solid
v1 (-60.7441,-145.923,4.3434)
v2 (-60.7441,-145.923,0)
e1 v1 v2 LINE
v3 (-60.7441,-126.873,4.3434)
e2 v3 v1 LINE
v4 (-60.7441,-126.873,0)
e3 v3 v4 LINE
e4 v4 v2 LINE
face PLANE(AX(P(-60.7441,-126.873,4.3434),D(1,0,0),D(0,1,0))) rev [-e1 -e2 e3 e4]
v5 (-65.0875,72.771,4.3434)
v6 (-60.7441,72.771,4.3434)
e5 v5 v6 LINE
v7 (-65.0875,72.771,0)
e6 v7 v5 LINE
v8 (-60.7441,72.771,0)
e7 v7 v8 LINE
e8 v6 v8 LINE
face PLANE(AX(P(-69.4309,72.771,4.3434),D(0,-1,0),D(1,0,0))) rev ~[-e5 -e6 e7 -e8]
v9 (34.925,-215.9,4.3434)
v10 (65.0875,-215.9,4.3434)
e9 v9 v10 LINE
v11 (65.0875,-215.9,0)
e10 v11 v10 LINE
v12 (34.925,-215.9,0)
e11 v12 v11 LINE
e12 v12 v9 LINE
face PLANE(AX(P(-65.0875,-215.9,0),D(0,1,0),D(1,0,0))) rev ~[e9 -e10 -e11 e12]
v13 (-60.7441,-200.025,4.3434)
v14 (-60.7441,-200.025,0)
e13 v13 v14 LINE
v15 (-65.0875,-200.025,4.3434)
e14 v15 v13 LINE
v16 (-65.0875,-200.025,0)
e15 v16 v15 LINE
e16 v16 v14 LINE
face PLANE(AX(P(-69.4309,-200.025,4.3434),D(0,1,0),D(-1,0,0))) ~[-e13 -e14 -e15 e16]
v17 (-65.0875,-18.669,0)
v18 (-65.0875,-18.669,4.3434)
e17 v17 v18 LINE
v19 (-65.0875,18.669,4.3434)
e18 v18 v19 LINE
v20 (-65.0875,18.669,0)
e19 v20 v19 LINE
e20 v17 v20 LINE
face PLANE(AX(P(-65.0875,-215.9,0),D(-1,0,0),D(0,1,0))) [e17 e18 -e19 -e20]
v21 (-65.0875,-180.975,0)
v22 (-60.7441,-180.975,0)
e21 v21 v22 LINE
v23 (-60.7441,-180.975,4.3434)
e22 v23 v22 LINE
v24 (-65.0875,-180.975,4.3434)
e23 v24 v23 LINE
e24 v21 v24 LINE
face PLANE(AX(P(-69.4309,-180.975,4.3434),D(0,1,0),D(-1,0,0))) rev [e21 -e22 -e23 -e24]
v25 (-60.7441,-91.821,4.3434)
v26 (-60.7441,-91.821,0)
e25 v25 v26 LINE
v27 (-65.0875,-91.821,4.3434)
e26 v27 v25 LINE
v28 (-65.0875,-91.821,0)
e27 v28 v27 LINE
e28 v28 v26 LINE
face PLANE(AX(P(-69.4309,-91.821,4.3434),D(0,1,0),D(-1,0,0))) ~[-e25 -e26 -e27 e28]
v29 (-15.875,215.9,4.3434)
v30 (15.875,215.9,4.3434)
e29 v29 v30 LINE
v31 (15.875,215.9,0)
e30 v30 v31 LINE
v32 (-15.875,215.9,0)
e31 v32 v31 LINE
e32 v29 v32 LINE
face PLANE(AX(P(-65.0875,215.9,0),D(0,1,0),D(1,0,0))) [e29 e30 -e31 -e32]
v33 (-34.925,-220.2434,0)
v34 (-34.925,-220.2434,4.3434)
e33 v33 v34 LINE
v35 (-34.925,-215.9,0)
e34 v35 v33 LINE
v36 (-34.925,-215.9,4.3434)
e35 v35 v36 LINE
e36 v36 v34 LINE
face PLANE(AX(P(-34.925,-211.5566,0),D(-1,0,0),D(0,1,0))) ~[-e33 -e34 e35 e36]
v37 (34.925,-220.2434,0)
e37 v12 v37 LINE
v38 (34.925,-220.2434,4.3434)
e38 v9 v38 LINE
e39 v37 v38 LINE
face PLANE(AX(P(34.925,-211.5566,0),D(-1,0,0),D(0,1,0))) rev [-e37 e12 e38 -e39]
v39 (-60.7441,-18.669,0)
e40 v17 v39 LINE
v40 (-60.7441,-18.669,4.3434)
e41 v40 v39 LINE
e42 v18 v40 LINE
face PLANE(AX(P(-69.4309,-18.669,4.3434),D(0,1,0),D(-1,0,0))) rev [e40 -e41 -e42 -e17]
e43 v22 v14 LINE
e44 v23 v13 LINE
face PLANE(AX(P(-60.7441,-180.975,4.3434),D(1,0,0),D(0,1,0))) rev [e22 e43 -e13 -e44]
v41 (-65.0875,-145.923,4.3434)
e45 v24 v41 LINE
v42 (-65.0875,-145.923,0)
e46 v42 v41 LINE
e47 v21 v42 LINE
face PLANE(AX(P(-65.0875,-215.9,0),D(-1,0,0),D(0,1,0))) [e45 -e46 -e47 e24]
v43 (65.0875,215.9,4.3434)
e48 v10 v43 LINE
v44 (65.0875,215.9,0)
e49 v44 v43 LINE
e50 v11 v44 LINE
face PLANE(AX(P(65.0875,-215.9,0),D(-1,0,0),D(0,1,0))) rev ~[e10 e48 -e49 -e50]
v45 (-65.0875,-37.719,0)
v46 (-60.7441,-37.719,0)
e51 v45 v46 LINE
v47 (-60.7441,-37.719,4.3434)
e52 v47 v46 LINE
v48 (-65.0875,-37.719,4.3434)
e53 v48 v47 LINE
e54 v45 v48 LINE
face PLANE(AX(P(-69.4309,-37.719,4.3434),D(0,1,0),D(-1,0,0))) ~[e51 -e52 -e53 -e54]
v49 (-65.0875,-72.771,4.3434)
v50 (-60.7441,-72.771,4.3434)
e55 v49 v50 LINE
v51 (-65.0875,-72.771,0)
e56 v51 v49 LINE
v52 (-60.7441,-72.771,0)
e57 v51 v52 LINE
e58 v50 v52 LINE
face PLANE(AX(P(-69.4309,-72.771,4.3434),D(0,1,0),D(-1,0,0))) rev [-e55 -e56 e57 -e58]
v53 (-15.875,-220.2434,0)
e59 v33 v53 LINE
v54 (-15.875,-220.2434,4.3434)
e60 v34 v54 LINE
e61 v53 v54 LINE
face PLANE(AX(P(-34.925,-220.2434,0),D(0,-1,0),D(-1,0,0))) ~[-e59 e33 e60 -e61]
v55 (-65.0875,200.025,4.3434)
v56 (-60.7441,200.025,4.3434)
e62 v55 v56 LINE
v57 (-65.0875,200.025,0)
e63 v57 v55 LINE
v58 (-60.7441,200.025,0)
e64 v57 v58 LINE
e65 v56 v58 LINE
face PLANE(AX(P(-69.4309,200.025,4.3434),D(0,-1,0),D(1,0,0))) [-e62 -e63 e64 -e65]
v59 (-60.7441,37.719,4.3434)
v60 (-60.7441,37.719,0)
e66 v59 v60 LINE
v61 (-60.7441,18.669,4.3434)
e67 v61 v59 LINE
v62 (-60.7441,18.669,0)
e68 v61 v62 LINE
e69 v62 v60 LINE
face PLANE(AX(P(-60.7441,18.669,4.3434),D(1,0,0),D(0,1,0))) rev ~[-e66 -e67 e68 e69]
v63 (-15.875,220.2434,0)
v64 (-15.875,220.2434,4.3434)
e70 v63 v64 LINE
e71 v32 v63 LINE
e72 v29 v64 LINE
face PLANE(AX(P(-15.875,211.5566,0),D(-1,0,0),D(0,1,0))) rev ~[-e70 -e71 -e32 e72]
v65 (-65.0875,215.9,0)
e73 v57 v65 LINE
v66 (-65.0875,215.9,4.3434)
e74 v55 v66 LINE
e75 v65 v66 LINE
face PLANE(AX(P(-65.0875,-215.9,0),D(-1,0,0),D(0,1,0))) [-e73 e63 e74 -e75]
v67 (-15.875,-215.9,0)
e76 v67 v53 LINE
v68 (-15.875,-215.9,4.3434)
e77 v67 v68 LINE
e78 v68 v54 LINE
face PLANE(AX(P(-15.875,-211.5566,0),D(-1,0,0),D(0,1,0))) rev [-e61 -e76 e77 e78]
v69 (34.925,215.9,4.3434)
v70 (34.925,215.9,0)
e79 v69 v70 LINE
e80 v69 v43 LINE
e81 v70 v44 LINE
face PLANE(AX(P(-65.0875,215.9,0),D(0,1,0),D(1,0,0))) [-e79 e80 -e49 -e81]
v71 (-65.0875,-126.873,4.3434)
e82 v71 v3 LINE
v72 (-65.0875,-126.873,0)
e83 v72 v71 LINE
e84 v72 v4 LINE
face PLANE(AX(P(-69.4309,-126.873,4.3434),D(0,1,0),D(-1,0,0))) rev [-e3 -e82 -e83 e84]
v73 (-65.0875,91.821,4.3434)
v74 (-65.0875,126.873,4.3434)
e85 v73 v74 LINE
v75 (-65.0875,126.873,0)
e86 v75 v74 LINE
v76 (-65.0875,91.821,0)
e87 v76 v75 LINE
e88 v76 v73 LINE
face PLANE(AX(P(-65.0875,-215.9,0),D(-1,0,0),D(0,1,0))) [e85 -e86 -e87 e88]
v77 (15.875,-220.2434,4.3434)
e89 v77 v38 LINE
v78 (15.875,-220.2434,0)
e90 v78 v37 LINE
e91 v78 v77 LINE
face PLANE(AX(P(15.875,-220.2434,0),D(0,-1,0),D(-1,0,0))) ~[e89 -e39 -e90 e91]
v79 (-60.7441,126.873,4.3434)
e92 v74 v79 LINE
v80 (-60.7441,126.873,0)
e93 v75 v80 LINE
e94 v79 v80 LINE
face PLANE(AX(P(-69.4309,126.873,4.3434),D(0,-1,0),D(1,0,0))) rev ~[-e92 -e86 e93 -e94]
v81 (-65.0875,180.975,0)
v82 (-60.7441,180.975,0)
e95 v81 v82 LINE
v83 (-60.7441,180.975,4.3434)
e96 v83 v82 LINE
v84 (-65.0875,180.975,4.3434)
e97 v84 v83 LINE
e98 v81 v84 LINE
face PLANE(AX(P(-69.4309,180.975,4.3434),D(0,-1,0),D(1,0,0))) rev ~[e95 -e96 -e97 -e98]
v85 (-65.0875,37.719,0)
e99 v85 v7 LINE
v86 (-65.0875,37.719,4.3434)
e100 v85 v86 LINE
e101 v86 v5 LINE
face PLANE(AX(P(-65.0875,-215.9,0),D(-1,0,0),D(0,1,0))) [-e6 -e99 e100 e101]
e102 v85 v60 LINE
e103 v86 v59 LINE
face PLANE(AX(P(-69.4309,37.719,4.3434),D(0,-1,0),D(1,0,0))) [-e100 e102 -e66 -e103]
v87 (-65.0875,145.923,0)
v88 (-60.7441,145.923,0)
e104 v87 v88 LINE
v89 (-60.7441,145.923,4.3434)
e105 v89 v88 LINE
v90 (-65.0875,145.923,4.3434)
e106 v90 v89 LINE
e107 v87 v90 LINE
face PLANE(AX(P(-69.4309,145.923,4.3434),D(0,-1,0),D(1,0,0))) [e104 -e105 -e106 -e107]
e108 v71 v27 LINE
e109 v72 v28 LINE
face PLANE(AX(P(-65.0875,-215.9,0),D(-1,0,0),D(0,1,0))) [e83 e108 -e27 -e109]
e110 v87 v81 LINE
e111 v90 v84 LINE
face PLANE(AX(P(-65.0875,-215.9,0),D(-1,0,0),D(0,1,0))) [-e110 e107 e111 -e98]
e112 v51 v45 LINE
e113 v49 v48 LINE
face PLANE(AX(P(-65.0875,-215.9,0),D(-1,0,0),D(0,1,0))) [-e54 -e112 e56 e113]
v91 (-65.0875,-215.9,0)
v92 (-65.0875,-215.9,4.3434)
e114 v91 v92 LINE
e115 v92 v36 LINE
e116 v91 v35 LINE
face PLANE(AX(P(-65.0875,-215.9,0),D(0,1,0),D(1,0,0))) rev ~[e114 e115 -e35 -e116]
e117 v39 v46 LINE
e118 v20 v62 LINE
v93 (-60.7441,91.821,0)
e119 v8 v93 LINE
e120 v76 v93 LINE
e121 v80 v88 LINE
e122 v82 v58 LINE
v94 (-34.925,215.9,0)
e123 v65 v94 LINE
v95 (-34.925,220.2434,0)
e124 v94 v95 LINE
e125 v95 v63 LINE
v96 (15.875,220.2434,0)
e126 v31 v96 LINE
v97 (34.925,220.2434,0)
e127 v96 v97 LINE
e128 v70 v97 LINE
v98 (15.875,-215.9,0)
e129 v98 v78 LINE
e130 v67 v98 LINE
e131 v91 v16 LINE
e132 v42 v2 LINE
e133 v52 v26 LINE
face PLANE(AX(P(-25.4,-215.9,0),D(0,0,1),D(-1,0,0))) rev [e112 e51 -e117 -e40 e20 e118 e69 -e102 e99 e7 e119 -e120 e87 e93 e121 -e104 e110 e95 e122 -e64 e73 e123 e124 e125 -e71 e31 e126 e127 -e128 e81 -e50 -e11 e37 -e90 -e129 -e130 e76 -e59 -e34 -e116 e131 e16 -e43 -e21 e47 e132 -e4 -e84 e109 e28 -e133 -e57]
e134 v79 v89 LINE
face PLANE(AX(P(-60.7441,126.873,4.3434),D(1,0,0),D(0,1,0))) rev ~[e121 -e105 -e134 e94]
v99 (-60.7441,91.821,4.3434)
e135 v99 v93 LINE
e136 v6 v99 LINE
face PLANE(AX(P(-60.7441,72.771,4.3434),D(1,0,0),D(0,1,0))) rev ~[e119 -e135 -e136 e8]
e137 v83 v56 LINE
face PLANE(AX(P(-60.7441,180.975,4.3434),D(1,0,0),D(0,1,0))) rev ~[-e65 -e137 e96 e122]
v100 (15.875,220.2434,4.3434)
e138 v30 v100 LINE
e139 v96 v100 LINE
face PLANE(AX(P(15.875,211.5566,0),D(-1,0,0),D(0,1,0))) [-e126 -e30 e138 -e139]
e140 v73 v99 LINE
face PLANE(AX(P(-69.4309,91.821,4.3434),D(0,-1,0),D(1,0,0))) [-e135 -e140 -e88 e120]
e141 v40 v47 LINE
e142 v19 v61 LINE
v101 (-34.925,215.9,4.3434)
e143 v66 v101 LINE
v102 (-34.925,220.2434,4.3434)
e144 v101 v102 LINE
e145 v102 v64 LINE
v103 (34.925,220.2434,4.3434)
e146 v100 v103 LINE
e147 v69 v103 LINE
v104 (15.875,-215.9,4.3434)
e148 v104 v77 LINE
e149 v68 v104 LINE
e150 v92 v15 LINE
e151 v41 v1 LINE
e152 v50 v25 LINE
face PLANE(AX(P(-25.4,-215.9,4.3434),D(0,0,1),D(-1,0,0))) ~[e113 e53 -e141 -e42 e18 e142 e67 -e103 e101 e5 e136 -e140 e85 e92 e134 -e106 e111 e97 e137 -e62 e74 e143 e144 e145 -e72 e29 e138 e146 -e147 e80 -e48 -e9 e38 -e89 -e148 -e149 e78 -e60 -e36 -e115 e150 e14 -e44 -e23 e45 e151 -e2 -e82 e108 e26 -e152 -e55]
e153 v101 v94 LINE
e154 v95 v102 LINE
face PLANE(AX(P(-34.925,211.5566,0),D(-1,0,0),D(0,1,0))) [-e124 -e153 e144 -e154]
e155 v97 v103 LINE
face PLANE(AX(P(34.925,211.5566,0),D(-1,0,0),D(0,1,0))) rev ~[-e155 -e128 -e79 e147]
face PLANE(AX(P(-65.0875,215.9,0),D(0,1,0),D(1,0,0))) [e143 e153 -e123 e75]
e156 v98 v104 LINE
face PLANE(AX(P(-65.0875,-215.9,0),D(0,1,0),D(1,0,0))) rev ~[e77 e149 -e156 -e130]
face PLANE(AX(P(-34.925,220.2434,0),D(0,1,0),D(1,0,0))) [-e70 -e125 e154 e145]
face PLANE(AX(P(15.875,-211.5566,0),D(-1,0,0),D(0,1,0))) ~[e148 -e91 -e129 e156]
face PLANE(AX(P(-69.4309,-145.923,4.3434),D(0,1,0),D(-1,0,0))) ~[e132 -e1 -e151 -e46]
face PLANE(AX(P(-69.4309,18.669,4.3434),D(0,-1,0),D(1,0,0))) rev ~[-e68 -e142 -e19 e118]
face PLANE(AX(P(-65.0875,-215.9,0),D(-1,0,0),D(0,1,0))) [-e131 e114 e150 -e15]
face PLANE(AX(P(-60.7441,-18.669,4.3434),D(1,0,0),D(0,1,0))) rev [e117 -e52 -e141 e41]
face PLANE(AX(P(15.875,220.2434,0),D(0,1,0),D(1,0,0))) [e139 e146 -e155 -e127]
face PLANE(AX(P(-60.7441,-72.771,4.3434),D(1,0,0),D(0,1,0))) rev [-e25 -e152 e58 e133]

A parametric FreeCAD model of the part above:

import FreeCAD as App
import Part
import Sketcher
from FreeCAD import Vector
Q = App.Units.Quantity

doc = App.newDocument("Part")
params = doc.addObject("Spreadsheet::Sheet", "Params")
for row, (alias, value) in enumerate([
    ("sketch1_height", "17 in"),
    ("sketch1_width", "5.125 in"),
    ("pad1_length", "0.171 in"),
    ("sketch2_width", "0.75 in"),
    ("sketch2_width2", "0.342 in"),
    ("sketch3_width", "0.75 in"),
    ("sketch3_height", "0.342 in"),
    ("pad2_length", "0.171 in"),
], start=1):
    params.set(f"A{row}", alias)
    params.set(f"B{row}", "=" + value)
    params.setAlias(f"B{row}", alias)

body = doc.addObject("PartDesign::Body", "Body")

# Sketch on XY plane
sketch1 = body.newObject("Sketcher::SketchObject", "Sketch")
sketch1.AttachmentSupport = (doc.getObject("XY_Plane"), [""])
sketch1.MapMode = "FlatFace"
sketch1.addGeometry(Part.LineSegment(Vector(-65.0875, 215.9, 0), Vector(-65.0875, -215.9, 0)), False)
sketch1.addGeometry(Part.LineSegment(Vector(-65.0875, -215.9, 0), Vector(65.0875, -215.9, 0)), False)
sketch1.addGeometry(Part.LineSegment(Vector(65.0875, -215.9, 0), Vector(65.0875, 215.9, 0)), False)
sketch1.addGeometry(Part.LineSegment(Vector(65.0875, 215.9, 0), Vector(-65.0875, 215.9, 0)), False)
sketch1.addConstraint(Sketcher.Constraint("Coincident", 0, 2, 1, 1))
sketch1.addConstraint(Sketcher.Constraint("Coincident", 1, 2, 2, 1))
sketch1.addConstraint(Sketcher.Constraint("Coincident", 2, 2, 3, 1))
sketch1.addConstraint(Sketcher.Constraint("Coincident", 3, 2, 0, 1))
sketch1.addConstraint(Sketcher.Constraint("Vertical", 0))
sketch1.addConstraint(Sketcher.Constraint("Horizontal", 1))
sketch1.addConstraint(Sketcher.Constraint("Vertical", 2))
sketch1.addConstraint(Sketcher.Constraint("Horizontal", 3))
sketch1.addConstraint(Sketcher.Constraint("Symmetric", 0, 2, 2, 2, -1, 1))
sketch1.addConstraint(Sketcher.Constraint("DistanceY", 0, 2, 0, 1, Q("17 in")))
sketch1.addConstraint(Sketcher.Constraint("DistanceX", 1, 1, 1, 2, Q("5.125 in")))
sketch1.setExpression("Constraints[9]", "Params.sketch1_height")
sketch1.setExpression("Constraints[10]", "Params.sketch1_width")
pad1 = body.newObject("PartDesign::Pad", "Pad")
pad1.Profile = sketch1
pad1.setExpression("Length", "Params.pad1_length")

# Sketch on XY plane
sketch2 = body.newObject("Sketcher::SketchObject", "Sketch001")
sketch2.AttachmentSupport = (doc.getObject("XY_Plane"), [""])
sketch2.MapMode = "FlatFace"
sketch2.AttachmentOffset = App.Placement(Vector(0, 0, 0.171 * 25.4), App.Rotation())
sketch2.addGeometry(Part.LineSegment(Vector(-69.4309, 200.025, 0), Vector(-69.4309, 180.975, 0)), False)
sketch2.addGeometry(Part.LineSegment(Vector(-69.4309, 180.975, 0), Vector(-60.7441, 180.975, 0)), False)
sketch2.addGeometry(Part.LineSegment(Vector(-60.7441, 180.975, 0), Vector(-60.7441, 200.025, 0)), False)
sketch2.addGeometry(Part.LineSegment(Vector(-60.7441, 200.025, 0), Vector(-69.4309, 200.025, 0)), False)
sketch2.addGeometry(Part.LineSegment(Vector(-34.925, 220.2434, 0), Vector(-34.925, 211.5566, 0)), False)
sketch2.addGeometry(Part.LineSegment(Vector(-34.925, 211.5566, 0), Vector(-15.875, 211.5566, 0)), False)
sketch2.addGeometry(Part.LineSegment(Vector(-15.875, 211.5566, 0), Vector(-15.875, 220.2434, 0)), False)
sketch2.addGeometry(Part.LineSegment(Vector(-15.875, 220.2434, 0), Vector(-34.925, 220.2434, 0)), False)
sketch2.addGeometry(Part.LineSegment(Vector(15.875, 220.2434, 0), Vector(15.875, 211.5566, 0)), False)
sketch2.addGeometry(Part.LineSegment(Vector(15.875, 211.5566, 0), Vector(34.925, 211.5566, 0)), False)
sketch2.addGeometry(Part.LineSegment(Vector(34.925, 211.5566, 0), Vector(34.925, 220.2434, 0)), False)
sketch2.addGeometry(Part.LineSegment(Vector(34.925, 220.2434, 0), Vector(15.875, 220.2434, 0)), False)
sketch2.addGeometry(Part.LineSegment(Vector(-69.4309, 145.923, 0), Vector(-69.4309, 126.873, 0)), False)
sketch2.addGeometry(Part.LineSegment(Vector(-69.4309, 126.873, 0), Vector(-60.7441, 126.873, 0)), False)
sketch2.addGeometry(Part.LineSegment(Vector(-60.7441, 126.873, 0), Vector(-60.7441, 145.923, 0)), False)
sketch2.addGeometry(Part.LineSegment(Vector(-60.7441, 145.923, 0), Vector(-69.4309, 145.923, 0)), False)
sketch2.addGeometry(Part.LineSegment(Vector(-69.4309, 91.821, 0), Vector(-69.4309, 72.771, 0)), False)
sketch2.addGeometry(Part.LineSegment(Vector(-69.4309, 72.771, 0), Vector(-60.7441, 72.771, 0)), False)
sketch2.addGeometry(Part.LineSegment(Vector(-60.7441, 72.771, 0), Vector(-60.7441, 91.821, 0)), False)
sketch2.addGeometry(Part.LineSegment(Vector(-60.7441, 91.821, 0), Vector(-69.4309, 91.821, 0)), False)
sketch2.addGeometry(Part.LineSegment(Vector(-69.4309, 37.719, 0), Vector(-69.4309, 18.669, 0)), False)
sketch2.addGeometry(Part.LineSegment(Vector(-69.4309, 18.669, 0), Vector(-60.7441, 18.669, 0)), False)
sketch2.addGeometry(Part.LineSegment(Vector(-60.7441, 18.669, 0), Vector(-60.7441, 37.719, 0)), False)
sketch2.addGeometry(Part.LineSegment(Vector(-60.7441, 37.719, 0), Vector(-69.4309, 37.719, 0)), False)
sketch2.addConstraint(Sketcher.Constraint("Coincident", 0, 2, 1, 1))
sketch2.addConstraint(Sketcher.Constraint("Coincident", 1, 2, 2, 1))
sketch2.addConstraint(Sketcher.Constraint("Coincident", 2, 2, 3, 1))
sketch2.addConstraint(Sketcher.Constraint("Coincident", 3, 2, 0, 1))
sketch2.addConstraint(Sketcher.Constraint("Coincident", 4, 2, 5, 1))
sketch2.addConstraint(Sketcher.Constraint("Coincident", 5, 2, 6, 1))
sketch2.addConstraint(Sketcher.Constraint("Coincident", 6, 2, 7, 1))
sketch2.addConstraint(Sketcher.Constraint("Coincident", 7, 2, 4, 1))
sketch2.addConstraint(Sketcher.Constraint("Coincident", 8, 2, 9, 1))
sketch2.addConstraint(Sketcher.Constraint("Coincident", 9, 2, 10, 1))
sketch2.addConstraint(Sketcher.Constraint("Coincident", 10, 2, 11, 1))
sketch2.addConstraint(Sketcher.Constraint("Coincident", 11, 2, 8, 1))
sketch2.addConstraint(Sketcher.Constraint("Coincident", 12, 2, 13, 1))
sketch2.addConstraint(Sketcher.Constraint("Coincident", 13, 2, 14, 1))
sketch2.addConstraint(Sketcher.Constraint("Coincident", 14, 2, 15, 1))
sketch2.addConstraint(Sketcher.Constraint("Coincident", 15, 2, 12, 1))
sketch2.addConstraint(Sketcher.Constraint("Coincident", 16, 2, 17, 1))
sketch2.addConstraint(Sketcher.Constraint("Coincident", 17, 2, 18, 1))
sketch2.addConstraint(Sketcher.Constraint("Coincident", 18, 2, 19, 1))
sketch2.addConstraint(Sketcher.Constraint("Coincident", 19, 2, 16, 1))
sketch2.addConstraint(Sketcher.Constraint("Coincident", 20, 2, 21, 1))
sketch2.addConstraint(Sketcher.Constraint("Coincident", 21, 2, 22, 1))
sketch2.addConstraint(Sketcher.Constraint("Coincident", 22, 2, 23, 1))
sketch2.addConstraint(Sketcher.Constraint("Coincident", 23, 2, 20, 1))
sketch2.addConstraint(Sketcher.Constraint("Vertical", 0))
sketch2.addConstraint(Sketcher.Constraint("Horizontal", 1))
sketch2.addConstraint(Sketcher.Constraint("Vertical", 2))
sketch2.addConstraint(Sketcher.Constraint("Horizontal", 3))
sketch2.addConstraint(Sketcher.Constraint("Vertical", 4))
sketch2.addConstraint(Sketcher.Constraint("Horizontal", 5))
sketch2.addConstraint(Sketcher.Constraint("Vertical", 6))
sketch2.addConstraint(Sketcher.Constraint("Horizontal", 7))
sketch2.addConstraint(Sketcher.Constraint("Vertical", 8))
sketch2.addConstraint(Sketcher.Constraint("Horizontal", 9))
sketch2.addConstraint(Sketcher.Constraint("Vertical", 10))
sketch2.addConstraint(Sketcher.Constraint("Horizontal", 11))
sketch2.addConstraint(Sketcher.Constraint("Vertical", 12))
sketch2.addConstraint(Sketcher.Constraint("Horizontal", 13))
sketch2.addConstraint(Sketcher.Constraint("Vertical", 14))
sketch2.addConstraint(Sketcher.Constraint("Horizontal", 15))
sketch2.addConstraint(Sketcher.Constraint("Vertical", 16))
sketch2.addConstraint(Sketcher.Constraint("Horizontal", 17))
sketch2.addConstraint(Sketcher.Constraint("Vertical", 18))
sketch2.addConstraint(Sketcher.Constraint("Horizontal", 19))
sketch2.addConstraint(Sketcher.Constraint("Vertical", 20))
sketch2.addConstraint(Sketcher.Constraint("Horizontal", 21))
sketch2.addConstraint(Sketcher.Constraint("Vertical", 22))
sketch2.addConstraint(Sketcher.Constraint("Horizontal", 23))
sketch2.addConstraint(Sketcher.Constraint("Symmetric", 5, 2, 8, 2, -2))
sketch2.addConstraint(Sketcher.Constraint("Symmetric", 7, 2, 10, 2, -2))
sketch2.addConstraint(Sketcher.Constraint("Vertical", 3, 2, 12, 2))
sketch2.addConstraint(Sketcher.Constraint("Vertical", 2, 2, 13, 2))
sketch2.addConstraint(Sketcher.Constraint("Vertical", 15, 2, 16, 2))
sketch2.addConstraint(Sketcher.Constraint("Vertical", 14, 2, 17, 2))
sketch2.addConstraint(Sketcher.Constraint("Vertical", 19, 2, 20, 2))
sketch2.addConstraint(Sketcher.Constraint("Vertical", 18, 2, 21, 2))
sketch2.addConstraint(Sketcher.Constraint("Equal", 11, 0))
sketch2.addConstraint(Sketcher.Constraint("Equal", 23, 4))
sketch2.addConstraint(Sketcher.Constraint("Equal", 2, 12))
sketch2.addConstraint(Sketcher.Constraint("Equal", 14, 16))
sketch2.addConstraint(Sketcher.Constraint("Equal", 18, 20))
sketch2.addConstraint(Sketcher.Constraint("DistanceX", 4, 2, 8, 2, Q("2 in")))
sketch2.addConstraint(Sketcher.Constraint("DistanceX", 5, 1, 5, 2, Q("0.75 in")))
sketch2.addConstraint(Sketcher.Constraint("DistanceX", 1, 1, 1, 2, Q("0.342 in")))
sketch2.addConstraint(Sketcher.Constraint("DistanceY", 12, 2, 0, 2, Q("2.13 in")))
sketch2.addConstraint(Sketcher.Constraint("DistanceY", 16, 2, 12, 2, Q("2.13 in")))
sketch2.addConstraint(Sketcher.Constraint("DistanceY", 20, 2, 16, 2, Q("2.13 in")))
sketch2.addConstraint(Sketcher.Constraint("DistanceY", -1, 1, 0, 2, Q("7.125 in")))
sketch2.addConstraint(Sketcher.Constraint("DistanceY", -1, 1, 4, 2, Q("8.329 in")))
sketch2.addConstraint(Sketcher.Constraint("DistanceX", 0, 2, -1, 1, Q("2.7335 in")))
sketch2.setExpression("Constraints[62]", "Params.sketch2_width")
sketch2.setExpression("Constraints[63]", "Params.sketch2_width2")
pocket1 = body.newObject("PartDesign::Pocket", "Pocket")
pocket1.Profile = sketch2
pocket1.Type = "ThroughAll"
doc.recompute()

mirrored = body.newObject("PartDesign::Mirrored", "Mirrored")
mirrored.Originals = [pocket1]
mirrored.MirrorPlane = (doc.getObject("XZ_Plane"), [""])
body.Tip = mirrored

# Sketch on XY plane
sketch3 = body.newObject("Sketcher::SketchObject", "Sketch002")
sketch3.AttachmentSupport = (doc.getObject("XY_Plane"), [""])
sketch3.MapMode = "FlatFace"
sketch3.addGeometry(Part.LineSegment(Vector(-34.925, 220.2434, 0), Vector(-34.925, 211.5566, 0)), False)
sketch3.addGeometry(Part.LineSegment(Vector(-34.925, 211.5566, 0), Vector(-15.875, 211.5566, 0)), False)
sketch3.addGeometry(Part.LineSegment(Vector(-15.875, 211.5566, 0), Vector(-15.875, 220.2434, 0)), False)
sketch3.addGeometry(Part.LineSegment(Vector(-15.875, 220.2434, 0), Vector(-34.925, 220.2434, 0)), False)
sketch3.addGeometry(Part.LineSegment(Vector(15.875, 220.2434, 0), Vector(15.875, 211.5566, 0)), False)
sketch3.addGeometry(Part.LineSegment(Vector(15.875, 211.5566, 0), Vector(34.925, 211.5566, 0)), False)
sketch3.addGeometry(Part.LineSegment(Vector(34.925, 211.5566, 0), Vector(34.925, 220.2434, 0)), False)
sketch3.addGeometry(Part.LineSegment(Vector(34.925, 220.2434, 0), Vector(15.875, 220.2434, 0)), False)
sketch3.addConstraint(Sketcher.Constraint("Coincident", 0, 2, 1, 1))
sketch3.addConstraint(Sketcher.Constraint("Coincident", 1, 2, 2, 1))
sketch3.addConstraint(Sketcher.Constraint("Coincident", 2, 2, 3, 1))
sketch3.addConstraint(Sketcher.Constraint("Coincident", 3, 2, 0, 1))
sketch3.addConstraint(Sketcher.Constraint("Coincident", 4, 2, 5, 1))
sketch3.addConstraint(Sketcher.Constraint("Coincident", 5, 2, 6, 1))
sketch3.addConstraint(Sketcher.Constraint("Coincident", 6, 2, 7, 1))
sketch3.addConstraint(Sketcher.Constraint("Coincident", 7, 2, 4, 1))
sketch3.addConstraint(Sketcher.Constraint("Vertical", 0))
sketch3.addConstraint(Sketcher.Constraint("Horizontal", 1))
sketch3.addConstraint(Sketcher.Constraint("Vertical", 2))
sketch3.addConstraint(Sketcher.Constraint("Horizontal", 3))
sketch3.addConstraint(Sketcher.Constraint("Vertical", 4))
sketch3.addConstraint(Sketcher.Constraint("Horizontal", 5))
sketch3.addConstraint(Sketcher.Constraint("Vertical", 6))
sketch3.addConstraint(Sketcher.Constraint("Horizontal", 7))
sketch3.addConstraint(Sketcher.Constraint("Symmetric", 1, 2, 4, 2, -2))
sketch3.addConstraint(Sketcher.Constraint("Symmetric", 3, 2, 6, 2, -2))
sketch3.addConstraint(Sketcher.Constraint("DistanceX", 0, 2, 4, 2, Q("2 in")))
sketch3.addConstraint(Sketcher.Constraint("DistanceX", 1, 1, 1, 2, Q("0.75 in")))
sketch3.addConstraint(Sketcher.Constraint("DistanceY", 0, 2, 0, 1, Q("0.342 in")))
sketch3.addConstraint(Sketcher.Constraint("DistanceY", -1, 1, 0, 2, Q("8.329 in")))
sketch3.setExpression("Constraints[19]", "Params.sketch3_width")
sketch3.setExpression("Constraints[20]", "Params.sketch3_height")
pad2 = body.newObject("PartDesign::Pad", "Pad001")
pad2.Profile = sketch3
pad2.setExpression("Length", "Params.pad2_length")
doc.recompute()

mirrored2 = body.newObject("PartDesign::Mirrored", "Mirrored001")
mirrored2.Originals = [pad2]
mirrored2.MirrorPlane = (doc.getObject("XZ_Plane"), [""])
body.Tip = mirrored2

doc.recompute()
